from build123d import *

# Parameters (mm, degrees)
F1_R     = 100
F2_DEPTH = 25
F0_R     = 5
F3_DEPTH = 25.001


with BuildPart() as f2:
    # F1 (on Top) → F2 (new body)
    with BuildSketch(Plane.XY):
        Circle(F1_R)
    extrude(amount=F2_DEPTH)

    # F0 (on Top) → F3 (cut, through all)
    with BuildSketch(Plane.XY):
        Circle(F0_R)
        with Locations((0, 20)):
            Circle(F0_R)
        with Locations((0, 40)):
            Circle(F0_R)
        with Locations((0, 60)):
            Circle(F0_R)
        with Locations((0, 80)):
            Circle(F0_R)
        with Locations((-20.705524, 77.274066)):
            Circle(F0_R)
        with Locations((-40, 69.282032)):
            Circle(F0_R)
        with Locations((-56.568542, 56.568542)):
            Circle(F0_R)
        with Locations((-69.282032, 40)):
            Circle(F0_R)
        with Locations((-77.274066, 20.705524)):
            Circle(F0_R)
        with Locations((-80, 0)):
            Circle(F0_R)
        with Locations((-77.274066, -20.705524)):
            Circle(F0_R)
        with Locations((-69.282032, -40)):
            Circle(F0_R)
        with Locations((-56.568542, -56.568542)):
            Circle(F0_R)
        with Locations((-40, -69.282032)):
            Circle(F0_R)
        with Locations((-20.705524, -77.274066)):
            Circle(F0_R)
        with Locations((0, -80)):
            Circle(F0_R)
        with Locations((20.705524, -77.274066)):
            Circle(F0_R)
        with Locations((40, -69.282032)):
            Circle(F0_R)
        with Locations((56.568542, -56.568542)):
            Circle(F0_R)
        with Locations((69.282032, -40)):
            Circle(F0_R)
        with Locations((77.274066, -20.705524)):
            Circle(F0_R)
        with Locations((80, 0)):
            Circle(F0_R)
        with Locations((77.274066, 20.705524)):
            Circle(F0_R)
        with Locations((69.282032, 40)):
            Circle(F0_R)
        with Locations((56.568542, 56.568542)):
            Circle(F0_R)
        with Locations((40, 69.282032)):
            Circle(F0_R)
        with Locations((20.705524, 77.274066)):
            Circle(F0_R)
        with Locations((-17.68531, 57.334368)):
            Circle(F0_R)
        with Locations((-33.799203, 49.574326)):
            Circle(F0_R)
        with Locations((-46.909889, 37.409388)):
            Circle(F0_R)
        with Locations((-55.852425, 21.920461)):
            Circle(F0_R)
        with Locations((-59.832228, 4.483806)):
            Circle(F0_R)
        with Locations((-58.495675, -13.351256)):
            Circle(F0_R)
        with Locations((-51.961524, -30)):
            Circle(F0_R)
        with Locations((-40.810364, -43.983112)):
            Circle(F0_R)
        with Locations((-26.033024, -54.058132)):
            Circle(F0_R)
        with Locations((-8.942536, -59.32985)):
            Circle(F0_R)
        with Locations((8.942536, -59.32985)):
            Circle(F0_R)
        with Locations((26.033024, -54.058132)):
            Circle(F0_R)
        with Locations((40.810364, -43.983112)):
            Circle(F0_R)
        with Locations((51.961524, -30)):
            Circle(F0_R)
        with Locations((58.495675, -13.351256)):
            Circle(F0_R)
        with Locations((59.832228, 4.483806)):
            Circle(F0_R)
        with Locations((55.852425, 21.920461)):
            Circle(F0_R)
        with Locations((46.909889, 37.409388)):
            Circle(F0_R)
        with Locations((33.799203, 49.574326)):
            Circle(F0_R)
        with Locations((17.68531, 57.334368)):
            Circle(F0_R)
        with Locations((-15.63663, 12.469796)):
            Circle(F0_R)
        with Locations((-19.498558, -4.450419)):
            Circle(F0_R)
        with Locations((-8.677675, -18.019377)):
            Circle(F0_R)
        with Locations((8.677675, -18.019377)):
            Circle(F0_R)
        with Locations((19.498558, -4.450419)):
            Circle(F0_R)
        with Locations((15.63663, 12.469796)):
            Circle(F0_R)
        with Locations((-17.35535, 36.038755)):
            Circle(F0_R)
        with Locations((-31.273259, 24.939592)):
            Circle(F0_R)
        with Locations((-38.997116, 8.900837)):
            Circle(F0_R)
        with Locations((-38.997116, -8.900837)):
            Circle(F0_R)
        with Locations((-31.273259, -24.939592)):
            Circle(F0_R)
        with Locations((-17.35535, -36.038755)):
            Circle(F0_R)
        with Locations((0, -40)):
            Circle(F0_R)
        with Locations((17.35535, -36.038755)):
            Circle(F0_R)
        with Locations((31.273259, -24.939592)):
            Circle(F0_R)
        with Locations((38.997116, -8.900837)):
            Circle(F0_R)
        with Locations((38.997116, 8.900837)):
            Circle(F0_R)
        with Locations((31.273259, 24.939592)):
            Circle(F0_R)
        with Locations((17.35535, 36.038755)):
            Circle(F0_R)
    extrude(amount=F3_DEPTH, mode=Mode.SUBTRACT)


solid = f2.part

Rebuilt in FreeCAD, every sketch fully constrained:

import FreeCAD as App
import Part
import Sketcher
Q = App.Units.Quantity

doc = App.newDocument("Part")
params = doc.addObject("Spreadsheet::Sheet", "Params")
for row, (alias, value) in enumerate([
    ("sketch1_diameter", "200 mm"),
    ("pad1_length", "25 mm"),
    ("sketch2_diameter", "10 mm"),
], start=1):
    params.set(f"A{row}", alias)
    params.set(f"B{row}", "=" + value)
    params.setAlias(f"B{row}", alias)

body = doc.addObject("PartDesign::Body", "Body")

sketch1 = body.newObject("Sketcher::SketchObject", "Sketch")
sketch1.AttachmentSupport = (doc.getObject("XY_Plane"), [""])
sketch1.MapMode = "FlatFace"
sketch1.addGeometry(Part.Circle(App.Vector(0, 0, 0), App.Vector(0, 0, 1), 100), False)
sketch1.addConstraint([
    Sketcher.Constraint("Coincident", 0, 3, -1, 1),
    Sketcher.Constraint("Diameter", 0, Q("200 mm")),
])
sketch1.setExpression("Constraints[1]", "Params.sketch1_diameter")
pad1 = body.newObject("PartDesign::Pad", "Pad")
pad1.Profile = sketch1
pad1.setExpression("Length", "Params.pad1_length")

sketch2 = body.newObject("Sketcher::SketchObject", "Sketch001")
sketch2.AttachmentSupport = (doc.getObject("XY_Plane"), [""])
sketch2.MapMode = "FlatFace"
sketch2.addGeometry([
    Part.Circle(App.Vector(0, 0, 0), App.Vector(0, 0, 1), 5),
    Part.Circle(App.Vector(0, 20, 0), App.Vector(0, 0, 1), 5),
    Part.Circle(App.Vector(0, 40, 0), App.Vector(0, 0, 1), 5),
    Part.Circle(App.Vector(0, 60, 0), App.Vector(0, 0, 1), 5),
    Part.Circle(App.Vector(0, 80, 0), App.Vector(0, 0, 1), 5),
    Part.Circle(App.Vector(-20.705524, 77.274066, 0), App.Vector(0, 0, 1), 5),
    Part.Circle(App.Vector(-40, 69.282032, 0), App.Vector(0, 0, 1), 5),
    Part.Circle(App.Vector(-56.568542, 56.568542, 0), App.Vector(0, 0, 1), 5),
    Part.Circle(App.Vector(-69.282032, 40, 0), App.Vector(0, 0, 1), 5),
    Part.Circle(App.Vector(-77.274066, 20.705524, 0), App.Vector(0, 0, 1), 5),
    Part.Circle(App.Vector(-80, 0, 0), App.Vector(0, 0, 1), 5),
    Part.Circle(App.Vector(-77.274066, -20.705524, 0), App.Vector(0, 0, 1), 5),
    Part.Circle(App.Vector(-69.282032, -40, 0), App.Vector(0, 0, 1), 5),
    Part.Circle(App.Vector(-56.568542, -56.568542, 0), App.Vector(0, 0, 1), 5),
    Part.Circle(App.Vector(-40, -69.282032, 0), App.Vector(0, 0, 1), 5),
    Part.Circle(App.Vector(-20.705524, -77.274066, 0), App.Vector(0, 0, 1), 5),
    Part.Circle(App.Vector(0, -80, 0), App.Vector(0, 0, 1), 5),
    Part.Circle(App.Vector(20.705524, -77.274066, 0), App.Vector(0, 0, 1), 5),
    Part.Circle(App.Vector(40, -69.282032, 0), App.Vector(0, 0, 1), 5),
    Part.Circle(App.Vector(56.568542, -56.568542, 0), App.Vector(0, 0, 1), 5),
    Part.Circle(App.Vector(69.282032, -40, 0), App.Vector(0, 0, 1), 5),
    Part.Circle(App.Vector(77.274066, -20.705524, 0), App.Vector(0, 0, 1), 5),
    Part.Circle(App.Vector(80, 0, 0), App.Vector(0, 0, 1), 5),
    Part.Circle(App.Vector(77.274066, 20.705524, 0), App.Vector(0, 0, 1), 5),
    Part.Circle(App.Vector(69.282032, 40, 0), App.Vector(0, 0, 1), 5),
    Part.Circle(App.Vector(56.568542, 56.568542, 0), App.Vector(0, 0, 1), 5),
    Part.Circle(App.Vector(40, 69.282032, 0), App.Vector(0, 0, 1), 5),
    Part.Circle(App.Vector(20.705524, 77.274066, 0), App.Vector(0, 0, 1), 5),
    Part.Circle(App.Vector(-17.68531, 57.334368, 0), App.Vector(0, 0, 1), 5),
    Part.Circle(App.Vector(-33.799203, 49.574326, 0), App.Vector(0, 0, 1), 5),
    Part.Circle(App.Vector(-46.909889, 37.409388, 0), App.Vector(0, 0, 1), 5),
    Part.Circle(App.Vector(-55.852425, 21.920461, 0), App.Vector(0, 0, 1), 5),
    Part.Circle(App.Vector(-59.832228, 4.483806, 0), App.Vector(0, 0, 1), 5),
    Part.Circle(App.Vector(-58.495675, -13.351256, 0), App.Vector(0, 0, 1), 5),
    Part.Circle(App.Vector(-51.961524, -30, 0), App.Vector(0, 0, 1), 5),
    Part.Circle(App.Vector(-40.810364, -43.983112, 0), App.Vector(0, 0, 1), 5),
    Part.Circle(App.Vector(-26.033024, -54.058132, 0), App.Vector(0, 0, 1), 5),
    Part.Circle(App.Vector(-8.942536, -59.32985, 0), App.Vector(0, 0, 1), 5),
    Part.Circle(App.Vector(8.942536, -59.32985, 0), App.Vector(0, 0, 1), 5),
    Part.Circle(App.Vector(26.033024, -54.058132, 0), App.Vector(0, 0, 1), 5),
    Part.Circle(App.Vector(40.810364, -43.983112, 0), App.Vector(0, 0, 1), 5),
    Part.Circle(App.Vector(51.961524, -30, 0), App.Vector(0, 0, 1), 5),
    Part.Circle(App.Vector(58.495675, -13.351256, 0), App.Vector(0, 0, 1), 5),
    Part.Circle(App.Vector(59.832228, 4.483806, 0), App.Vector(0, 0, 1), 5),
    Part.Circle(App.Vector(55.852425, 21.920461, 0), App.Vector(0, 0, 1), 5),
    Part.Circle(App.Vector(46.909889, 37.409388, 0), App.Vector(0, 0, 1), 5),
    Part.Circle(App.Vector(33.799203, 49.574326, 0), App.Vector(0, 0, 1), 5),
    Part.Circle(App.Vector(17.68531, 57.334368, 0), App.Vector(0, 0, 1), 5),
    Part.Circle(App.Vector(-15.63663, 12.469796, 0), App.Vector(0, 0, 1), 5),
    Part.Circle(App.Vector(-19.498558, -4.450419, 0), App.Vector(0, 0, 1), 5),
    Part.Circle(App.Vector(-8.677675, -18.019377, 0), App.Vector(0, 0, 1), 5),
    Part.Circle(App.Vector(8.677675, -18.019377, 0), App.Vector(0, 0, 1), 5),
    Part.Circle(App.Vector(19.498558, -4.450419, 0), App.Vector(0, 0, 1), 5),
    Part.Circle(App.Vector(15.63663, 12.469796, 0), App.Vector(0, 0, 1), 5),
    Part.Circle(App.Vector(-17.35535, 36.038755, 0), App.Vector(0, 0, 1), 5),
    Part.Circle(App.Vector(-31.273259, 24.939592, 0), App.Vector(0, 0, 1), 5),
    Part.Circle(App.Vector(-38.997116, 8.900837, 0), App.Vector(0, 0, 1), 5),
    Part.Circle(App.Vector(-38.997116, -8.900837, 0), App.Vector(0, 0, 1), 5),
    Part.Circle(App.Vector(-31.273259, -24.939592, 0), App.Vector(0, 0, 1), 5),
    Part.Circle(App.Vector(-17.35535, -36.038755, 0), App.Vector(0, 0, 1), 5),
    Part.Circle(App.Vector(0, -40, 0), App.Vector(0, 0, 1), 5),
    Part.Circle(App.Vector(17.35535, -36.038755, 0), App.Vector(0, 0, 1), 5),
    Part.Circle(App.Vector(31.273259, -24.939592, 0), App.Vector(0, 0, 1), 5),
    Part.Circle(App.Vector(38.997116, -8.900837, 0), App.Vector(0, 0, 1), 5),
    Part.Circle(App.Vector(38.997116, 8.900837, 0), App.Vector(0, 0, 1), 5),
    Part.Circle(App.Vector(31.273259, 24.939592, 0), App.Vector(0, 0, 1), 5),
    Part.Circle(App.Vector(17.35535, 36.038755, 0), App.Vector(0, 0, 1), 5),
], False)
sketch2.addConstraint([
    Sketcher.Constraint("Coincident", 0, 3, -1, 1),
    Sketcher.Constraint("Equal", 0, 1),
    Sketcher.Constraint("Equal", 1, 2),
    Sketcher.Constraint("Equal", 2, 3),
    Sketcher.Constraint("Equal", 3, 4),
    Sketcher.Constraint("Equal", 4, 5),
    Sketcher.Constraint("Equal", 5, 6),
    Sketcher.Constraint("Equal", 6, 7),
    Sketcher.Constraint("Equal", 7, 8),
    Sketcher.Constraint("Equal", 8, 9),
    Sketcher.Constraint("Equal", 9, 10),
    Sketcher.Constraint("Equal", 10, 11),
    Sketcher.Constraint("Equal", 11, 12),
    Sketcher.Constraint("Equal", 12, 13),
    Sketcher.Constraint("Equal", 13, 14),
    Sketcher.Constraint("Equal", 14, 15),
    Sketcher.Constraint("Equal", 15, 16),
    Sketcher.Constraint("Equal", 16, 17),
    Sketcher.Constraint("Equal", 17, 18),
    Sketcher.Constraint("Equal", 18, 19),
    Sketcher.Constraint("Equal", 19, 20),
    Sketcher.Constraint("Equal", 20, 21),
    Sketcher.Constraint("Equal", 21, 22),
    Sketcher.Constraint("Equal", 22, 23),
    Sketcher.Constraint("Equal", 23, 24),
    Sketcher.Constraint("Equal", 24, 25),
    Sketcher.Constraint("Equal", 25, 26),
    Sketcher.Constraint("Equal", 26, 27),
    Sketcher.Constraint("Equal", 27, 28),
    Sketcher.Constraint("Equal", 28, 29),
    Sketcher.Constraint("Equal", 29, 30),
    Sketcher.Constraint("Equal", 30, 31),
    Sketcher.Constraint("Equal", 31, 32),
    Sketcher.Constraint("Equal", 32, 33),
    Sketcher.Constraint("Equal", 33, 34),
    Sketcher.Constraint("Equal", 34, 35),
    Sketcher.Constraint("Equal", 35, 36),
    Sketcher.Constraint("Equal", 36, 37),
    Sketcher.Constraint("Equal", 37, 38),
    Sketcher.Constraint("Equal", 38, 39),
    Sketcher.Constraint("Equal", 39, 40),
    Sketcher.Constraint("Equal", 40, 41),
    Sketcher.Constraint("Equal", 41, 42),
    Sketcher.Constraint("Equal", 42, 43),
    Sketcher.Constraint("Equal", 43, 44),
    Sketcher.Constraint("Equal", 44, 45),
    Sketcher.Constraint("Equal", 45, 46),
    Sketcher.Constraint("Equal", 46, 47),
    Sketcher.Constraint("Equal", 47, 48),
    Sketcher.Constraint("Equal", 48, 49),
    Sketcher.Constraint("Equal", 49, 50),
    Sketcher.Constraint("Equal", 50, 51),
    Sketcher.Constraint("Equal", 51, 52),
    Sketcher.Constraint("Equal", 52, 53),
    Sketcher.Constraint("Equal", 53, 54),
    Sketcher.Constraint("Equal", 54, 55),
    Sketcher.Constraint("Equal", 55, 56),
    Sketcher.Constraint("Equal", 56, 57),
    Sketcher.Constraint("Equal", 57, 58),
    Sketcher.Constraint("Equal", 58, 59),
    Sketcher.Constraint("Equal", 59, 60),
    Sketcher.Constraint("Equal", 60, 61),
    Sketcher.Constraint("Equal", 61, 62),
    Sketcher.Constraint("Equal", 62, 63),
    Sketcher.Constraint("Equal", 63, 64),
    Sketcher.Constraint("Equal", 64, 65),
    Sketcher.Constraint("Equal", 65, 66),
    Sketcher.Constraint("Symmetric", 4, 3, 16, 3, -1, 1),
    Sketcher.Constraint("Symmetric", 5, 3, 17, 3, -1, 1),
    Sketcher.Constraint("Symmetric", 6, 3, 18, 3, -1, 1),
    Sketcher.Constraint("Symmetric", 7, 3, 19, 3, -1, 1),
    Sketcher.Constraint("Symmetric", 8, 3, 20, 3, -1, 1),
    Sketcher.Constraint("Symmetric", 9, 3, 21, 3, -1, 1),
    Sketcher.Constraint("Symmetric", 10, 3, 22, 3, -1, 1),
    Sketcher.Constraint("Symmetric", 11, 3, 23, 3, -1, 1),
    Sketcher.Constraint("Symmetric", 12, 3, 24, 3, -1, 1),
    Sketcher.Constraint("Symmetric", 13, 3, 25, 3, -1, 1),
    Sketcher.Constraint("Symmetric", 14, 3, 26, 3, -1, 1),
    Sketcher.Constraint("Symmetric", 15, 3, 27, 3, -1, 1),
    Sketcher.Constraint("Symmetric", 2, 3, 60, 3, -1, 1),
    Sketcher.Constraint("Symmetric", 54, 3, 61, 3, -1, 1),
    Sketcher.Constraint("Symmetric", 55, 3, 62, 3, -1, 1),
    Sketcher.Constraint("Symmetric", 56, 3, 63, 3, -1, 1),
    Sketcher.Constraint("Symmetric", 57, 3, 64, 3, -1, 1),
    Sketcher.Constraint("Symmetric", 58, 3, 65, 3, -1, 1),
    Sketcher.Constraint("Symmetric", 59, 3, 66, 3, -1, 1),
    Sketcher.Constraint("Symmetric", 15, 3, 17, 3, -2),
    Sketcher.Constraint("Symmetric", 14, 3, 18, 3, -2),
    Sketcher.Constraint("Symmetric", 13, 3, 19, 3, -2),
    Sketcher.Constraint("Symmetric", 12, 3, 20, 3, -2),
    Sketcher.Constraint("Symmetric", 11, 3, 21, 3, -2),
    Sketcher.Constraint("Symmetric", 37, 3, 38, 3, -2),
    Sketcher.Constraint("Symmetric", 36, 3, 39, 3, -2),
    Sketcher.Constraint("Symmetric", 35, 3, 40, 3, -2),
    Sketcher.Constraint("Symmetric", 34, 3, 41, 3, -2),
    Sketcher.Constraint("Symmetric", 33, 3, 42, 3, -2),
    Sketcher.Constraint("Symmetric", 32, 3, 43, 3, -2),
    Sketcher.Constraint("Symmetric", 31, 3, 44, 3, -2),
    Sketcher.Constraint("Symmetric", 30, 3, 45, 3, -2),
    Sketcher.Constraint("Symmetric", 29, 3, 46, 3, -2),
    Sketcher.Constraint("Symmetric", 28, 3, 47, 3, -2),
    Sketcher.Constraint("Symmetric", 50, 3, 51, 3, -2),
    Sketcher.Constraint("Symmetric", 49, 3, 52, 3, -2),
    Sketcher.Constraint("Symmetric", 48, 3, 53, 3, -2),
    Sketcher.Constraint("Symmetric", 59, 3, 61, 3, -2),
    Sketcher.Constraint("Symmetric", 58, 3, 62, 3, -2),
    Sketcher.Constraint("Symmetric", 57, 3, 63, 3, -2),
    Sketcher.Constraint("PointOnObject", 1, 3, -2),
    Sketcher.Constraint("PointOnObject", 2, 3, -2),
    Sketcher.Constraint("PointOnObject", 3, 3, -2),
    Sketcher.Constraint("PointOnObject", 4, 3, -2),
    Sketcher.Constraint("PointOnObject", 10, 3, -1),
    Sketcher.Constraint("Horizontal", 2, 3, 8, 3),
    Sketcher.Constraint("Diameter", 0, Q("10 mm")),
    Sketcher.Constraint("DistanceY", -1, 1, 1, 3, Q("20 mm")),
    Sketcher.Constraint("DistanceY", -1, 1, 2, 3, Q("40 mm")),
    Sketcher.Constraint("DistanceY", -1, 1, 3, 3, Q("60 mm")),
    Sketcher.Constraint("DistanceY", -1, 1, 4, 3, Q("80 mm")),
    Sketcher.Constraint("DistanceX", 6, 3, -1, 1, Q("40 mm")),
    Sketcher.Constraint("DistanceX", 10, 3, -1, 1, Q("80 mm")),
    Sketcher.Constraint("DistanceY", 34, 3, -1, 1, Q("30 mm")),
    Sketcher.Constraint("DistanceY", -1, 1, 6, 3, Q("69.282032 mm")),
    Sketcher.Constraint("DistanceX", 8, 3, -1, 1, Q("69.282032 mm")),
    Sketcher.Constraint("DistanceX", 28, 3, -1, 1, Q("17.68531 mm")),
    Sketcher.Constraint("DistanceX", 30, 3, -1, 1, Q("46.909889 mm")),
    Sketcher.Constraint("DistanceY", -1, 1, 31, 3, Q("21.920461 mm")),
    Sketcher.Constraint("DistanceY", 35, 3, -1, 1, Q("43.983112 mm")),
    Sketcher.Constraint("DistanceY", 37, 3, -1, 1, Q("59.32985 mm")),
    Sketcher.Constraint("DistanceX", 48, 3, -1, 1, Q("15.63663 mm")),
    Sketcher.Constraint("DistanceY", 49, 3, -1, 1, Q("4.450419 mm")),
    Sketcher.Constraint("DistanceX", 54, 3, -1, 1, Q("17.35535 mm")),
    Sketcher.Constraint("DistanceX", 55, 3, -1, 1, Q("31.273259 mm")),
    Sketcher.Constraint("DistanceX", 5, 3, -1, 1, Q("20.705524 mm")),
    Sketcher.Constraint("DistanceY", -1, 1, 5, 3, Q("77.274066 mm")),
    Sketcher.Constraint("DistanceX", 7, 3, -1, 1, Q("56.568542 mm")),
    Sketcher.Constraint("DistanceY", -1, 1, 7, 3, Q("56.568542 mm")),
    Sketcher.Constraint("DistanceX", 9, 3, -1, 1, Q("77.274066 mm")),
    Sketcher.Constraint("DistanceY", -1, 1, 9, 3, Q("20.705524 mm")),
    Sketcher.Constraint("DistanceY", -1, 1, 28, 3, Q("57.334368 mm")),
    Sketcher.Constraint("DistanceX", 29, 3, -1, 1, Q("33.799203 mm")),
    Sketcher.Constraint("DistanceY", -1, 1, 29, 3, Q("49.574326 mm")),
    Sketcher.Constraint("DistanceY", -1, 1, 30, 3, Q("37.409388 mm")),
    Sketcher.Constraint("DistanceX", 31, 3, -1, 1, Q("55.852425 mm")),
    Sketcher.Constraint("DistanceX", 32, 3, -1, 1, Q("59.832228 mm")),
    Sketcher.Constraint("DistanceY", -1, 1, 32, 3, Q("4.483806 mm")),
    Sketcher.Constraint("DistanceX", 33, 3, -1, 1, Q("58.495675 mm")),
    Sketcher.Constraint("DistanceY", 33, 3, -1, 1, Q("13.351256 mm")),
    Sketcher.Constraint("DistanceX", 34, 3, -1, 1, Q("51.961524 mm")),
    Sketcher.Constraint("DistanceX", 35, 3, -1, 1, Q("40.810364 mm")),
    Sketcher.Constraint("DistanceX", 36, 3, -1, 1, Q("26.033024 mm")),
    Sketcher.Constraint("DistanceY", 36, 3, -1, 1, Q("54.058132 mm")),
    Sketcher.Constraint("DistanceX", 37, 3, -1, 1, Q("8.942536 mm")),
    Sketcher.Constraint("DistanceY", -1, 1, 48, 3, Q("12.469796 mm")),
    Sketcher.Constraint("DistanceX", 49, 3, -1, 1, Q("19.498558 mm")),
    Sketcher.Constraint("DistanceX", 50, 3, -1, 1, Q("8.677675 mm")),
    Sketcher.Constraint("DistanceY", 50, 3, -1, 1, Q("18.019377 mm")),
    Sketcher.Constraint("DistanceY", -1, 1, 54, 3, Q("36.038755 mm")),
    Sketcher.Constraint("DistanceY", -1, 1, 55, 3, Q("24.939592 mm")),
    Sketcher.Constraint("DistanceX", 56, 3, -1, 1, Q("38.997116 mm")),
    Sketcher.Constraint("DistanceY", -1, 1, 56, 3, Q("8.900837 mm")),
])
sketch2.setExpression("Constraints[113]", "Params.sketch2_diameter")
pocket1 = body.newObject("PartDesign::Pocket", "Pocket")
pocket1.Profile = sketch2
pocket1.Type = "ThroughAll"
pocket1.Reversed = True

doc.recompute()
